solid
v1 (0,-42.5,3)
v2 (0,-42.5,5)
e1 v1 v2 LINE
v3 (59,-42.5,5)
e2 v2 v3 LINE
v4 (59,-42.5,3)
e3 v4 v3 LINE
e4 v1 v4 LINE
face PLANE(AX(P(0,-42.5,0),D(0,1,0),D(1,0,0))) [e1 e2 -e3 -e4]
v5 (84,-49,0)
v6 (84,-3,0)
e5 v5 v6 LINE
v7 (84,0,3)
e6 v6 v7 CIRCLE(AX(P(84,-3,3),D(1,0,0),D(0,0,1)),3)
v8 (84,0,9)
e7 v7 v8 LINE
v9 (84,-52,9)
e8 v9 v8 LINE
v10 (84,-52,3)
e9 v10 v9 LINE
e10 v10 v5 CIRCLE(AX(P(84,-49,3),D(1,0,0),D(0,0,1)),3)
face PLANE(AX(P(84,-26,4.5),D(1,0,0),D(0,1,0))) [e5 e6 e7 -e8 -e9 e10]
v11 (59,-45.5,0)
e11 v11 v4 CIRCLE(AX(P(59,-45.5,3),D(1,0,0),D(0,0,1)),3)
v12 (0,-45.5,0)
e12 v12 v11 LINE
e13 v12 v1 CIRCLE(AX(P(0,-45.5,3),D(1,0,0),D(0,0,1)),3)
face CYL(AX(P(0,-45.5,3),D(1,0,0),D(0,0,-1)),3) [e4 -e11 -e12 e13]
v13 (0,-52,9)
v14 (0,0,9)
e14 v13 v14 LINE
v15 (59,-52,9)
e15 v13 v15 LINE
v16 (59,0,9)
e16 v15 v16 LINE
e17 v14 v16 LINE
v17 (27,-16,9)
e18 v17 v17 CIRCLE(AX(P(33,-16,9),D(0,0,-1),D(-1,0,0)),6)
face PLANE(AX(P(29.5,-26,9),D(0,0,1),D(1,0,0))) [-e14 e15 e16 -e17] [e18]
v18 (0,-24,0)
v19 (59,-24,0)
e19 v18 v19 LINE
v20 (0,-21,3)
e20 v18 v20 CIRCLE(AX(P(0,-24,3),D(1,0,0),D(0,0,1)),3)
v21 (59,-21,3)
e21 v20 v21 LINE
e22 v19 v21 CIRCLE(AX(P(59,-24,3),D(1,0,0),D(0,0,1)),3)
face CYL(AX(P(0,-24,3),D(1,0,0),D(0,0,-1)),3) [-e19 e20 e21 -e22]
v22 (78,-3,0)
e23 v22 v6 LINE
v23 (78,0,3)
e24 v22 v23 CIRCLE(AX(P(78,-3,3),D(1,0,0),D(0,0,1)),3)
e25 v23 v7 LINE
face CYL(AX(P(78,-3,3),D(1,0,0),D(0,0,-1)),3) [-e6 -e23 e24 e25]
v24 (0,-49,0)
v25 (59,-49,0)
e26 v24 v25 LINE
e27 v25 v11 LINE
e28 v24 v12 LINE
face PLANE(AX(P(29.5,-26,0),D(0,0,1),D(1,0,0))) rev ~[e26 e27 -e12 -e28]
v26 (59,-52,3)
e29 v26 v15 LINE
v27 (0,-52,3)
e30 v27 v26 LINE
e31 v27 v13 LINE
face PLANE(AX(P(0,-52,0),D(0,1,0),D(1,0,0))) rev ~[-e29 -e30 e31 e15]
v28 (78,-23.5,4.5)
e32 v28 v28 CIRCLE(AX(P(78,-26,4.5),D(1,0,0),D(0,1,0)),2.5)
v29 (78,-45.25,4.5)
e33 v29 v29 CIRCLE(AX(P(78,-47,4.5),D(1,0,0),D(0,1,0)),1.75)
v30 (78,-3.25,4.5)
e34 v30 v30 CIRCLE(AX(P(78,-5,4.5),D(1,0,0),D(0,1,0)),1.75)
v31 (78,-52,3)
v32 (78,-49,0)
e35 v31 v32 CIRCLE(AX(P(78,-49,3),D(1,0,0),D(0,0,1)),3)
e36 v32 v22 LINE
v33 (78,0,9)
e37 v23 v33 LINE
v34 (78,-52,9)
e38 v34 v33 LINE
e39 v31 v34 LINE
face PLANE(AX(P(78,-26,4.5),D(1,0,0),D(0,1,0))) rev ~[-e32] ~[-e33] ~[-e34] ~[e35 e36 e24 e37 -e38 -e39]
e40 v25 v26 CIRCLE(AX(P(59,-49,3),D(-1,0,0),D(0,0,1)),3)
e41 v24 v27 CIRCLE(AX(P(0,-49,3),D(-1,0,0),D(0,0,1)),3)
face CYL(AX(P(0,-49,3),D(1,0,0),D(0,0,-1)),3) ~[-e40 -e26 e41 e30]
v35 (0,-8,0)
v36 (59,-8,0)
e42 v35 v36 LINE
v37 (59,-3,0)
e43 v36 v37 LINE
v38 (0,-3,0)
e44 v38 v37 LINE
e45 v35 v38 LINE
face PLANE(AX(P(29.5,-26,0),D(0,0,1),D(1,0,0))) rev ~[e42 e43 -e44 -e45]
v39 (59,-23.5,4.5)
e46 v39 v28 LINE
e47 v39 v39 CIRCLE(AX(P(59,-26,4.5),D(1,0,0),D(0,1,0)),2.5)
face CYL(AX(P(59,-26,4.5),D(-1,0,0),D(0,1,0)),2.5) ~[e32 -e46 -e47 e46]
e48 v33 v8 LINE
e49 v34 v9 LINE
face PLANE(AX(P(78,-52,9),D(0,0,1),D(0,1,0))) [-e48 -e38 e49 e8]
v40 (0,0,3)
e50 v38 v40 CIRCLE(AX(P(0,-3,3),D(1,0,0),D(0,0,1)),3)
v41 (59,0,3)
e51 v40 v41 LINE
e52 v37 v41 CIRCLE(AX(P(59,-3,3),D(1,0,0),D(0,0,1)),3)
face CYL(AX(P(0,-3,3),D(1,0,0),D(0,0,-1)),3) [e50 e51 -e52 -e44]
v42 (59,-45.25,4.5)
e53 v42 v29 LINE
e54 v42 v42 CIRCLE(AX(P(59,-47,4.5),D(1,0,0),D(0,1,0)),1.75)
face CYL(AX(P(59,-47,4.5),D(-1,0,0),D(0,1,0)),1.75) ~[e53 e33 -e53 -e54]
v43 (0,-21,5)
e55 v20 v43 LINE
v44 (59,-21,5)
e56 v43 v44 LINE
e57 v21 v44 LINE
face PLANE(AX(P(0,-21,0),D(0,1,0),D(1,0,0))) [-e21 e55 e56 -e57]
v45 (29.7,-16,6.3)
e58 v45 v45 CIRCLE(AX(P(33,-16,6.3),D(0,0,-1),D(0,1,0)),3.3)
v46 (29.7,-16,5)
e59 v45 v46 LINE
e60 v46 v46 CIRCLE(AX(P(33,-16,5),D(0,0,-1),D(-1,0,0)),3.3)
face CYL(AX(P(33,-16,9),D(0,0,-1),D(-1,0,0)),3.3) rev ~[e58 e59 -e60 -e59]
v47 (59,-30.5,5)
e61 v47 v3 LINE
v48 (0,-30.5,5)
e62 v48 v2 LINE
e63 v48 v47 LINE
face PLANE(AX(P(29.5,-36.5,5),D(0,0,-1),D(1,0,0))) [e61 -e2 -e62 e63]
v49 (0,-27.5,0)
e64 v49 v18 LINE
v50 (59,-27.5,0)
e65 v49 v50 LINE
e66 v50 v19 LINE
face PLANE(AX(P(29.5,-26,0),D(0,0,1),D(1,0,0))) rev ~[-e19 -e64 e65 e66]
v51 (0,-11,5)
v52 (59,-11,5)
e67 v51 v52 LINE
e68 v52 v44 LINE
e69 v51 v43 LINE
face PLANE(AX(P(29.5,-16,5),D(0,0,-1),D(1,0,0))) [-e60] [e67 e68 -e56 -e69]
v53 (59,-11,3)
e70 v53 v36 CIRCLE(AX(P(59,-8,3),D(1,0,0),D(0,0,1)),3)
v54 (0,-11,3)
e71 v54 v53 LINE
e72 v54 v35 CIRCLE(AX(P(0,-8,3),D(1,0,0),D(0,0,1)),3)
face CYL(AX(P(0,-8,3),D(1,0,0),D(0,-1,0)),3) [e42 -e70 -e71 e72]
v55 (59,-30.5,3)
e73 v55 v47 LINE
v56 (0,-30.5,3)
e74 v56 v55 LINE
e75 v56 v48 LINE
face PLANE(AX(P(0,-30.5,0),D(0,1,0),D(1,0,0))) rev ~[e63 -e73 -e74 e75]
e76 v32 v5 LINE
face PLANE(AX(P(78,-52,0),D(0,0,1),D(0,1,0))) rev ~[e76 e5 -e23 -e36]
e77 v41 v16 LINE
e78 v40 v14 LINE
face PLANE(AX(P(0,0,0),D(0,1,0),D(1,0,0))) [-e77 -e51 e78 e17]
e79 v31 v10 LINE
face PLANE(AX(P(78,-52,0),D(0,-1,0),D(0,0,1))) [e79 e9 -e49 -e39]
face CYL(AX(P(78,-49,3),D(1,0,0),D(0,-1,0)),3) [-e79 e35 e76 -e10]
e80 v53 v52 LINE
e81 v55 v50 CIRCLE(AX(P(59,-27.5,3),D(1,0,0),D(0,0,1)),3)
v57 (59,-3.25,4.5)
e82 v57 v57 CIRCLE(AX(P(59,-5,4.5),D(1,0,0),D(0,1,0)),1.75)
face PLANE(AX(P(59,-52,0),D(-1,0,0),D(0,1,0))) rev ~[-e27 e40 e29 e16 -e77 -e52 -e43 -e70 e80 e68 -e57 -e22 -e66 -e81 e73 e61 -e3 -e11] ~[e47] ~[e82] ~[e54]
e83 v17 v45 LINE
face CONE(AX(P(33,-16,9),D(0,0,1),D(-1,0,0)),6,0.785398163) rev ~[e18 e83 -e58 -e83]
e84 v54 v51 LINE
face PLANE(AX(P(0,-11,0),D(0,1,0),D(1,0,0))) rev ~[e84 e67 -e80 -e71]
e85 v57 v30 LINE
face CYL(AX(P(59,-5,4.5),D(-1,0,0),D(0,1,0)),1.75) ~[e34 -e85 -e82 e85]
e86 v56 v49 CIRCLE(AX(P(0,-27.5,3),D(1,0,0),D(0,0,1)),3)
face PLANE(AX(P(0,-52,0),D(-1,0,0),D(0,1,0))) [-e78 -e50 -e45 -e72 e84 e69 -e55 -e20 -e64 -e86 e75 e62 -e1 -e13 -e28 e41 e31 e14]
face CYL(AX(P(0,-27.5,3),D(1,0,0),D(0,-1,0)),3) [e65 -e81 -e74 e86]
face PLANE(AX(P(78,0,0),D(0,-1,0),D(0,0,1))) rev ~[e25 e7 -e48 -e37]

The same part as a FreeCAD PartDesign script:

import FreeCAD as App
import Part
import Sketcher
from FreeCAD import Vector


def edges_at(feature, points):
    """Names of the edges that pass closest to the given points."""
    edges = feature.Shape.Edges
    near = lambda p: min(range(len(edges)), key=lambda i: edges[i].distToShape(Part.Vertex(*p))[0])
    return sorted({f"Edge{near(p) + 1}" for p in points})

doc = App.newDocument("Part")
params = doc.addObject("Spreadsheet::Sheet", "Params")
for row, (alias, value) in enumerate([
    ("sketch1_width", "59 mm"),
    ("sketch1_height", "52 mm"),
    ("pad1_length", "9 mm"),
    ("sketch2_diameter", "5 mm"),
    ("sketch2_diameter2", "3.5 mm"),
    ("pad2_length", "19 mm"),
    ("sketch3_width", "52 mm"),
    ("sketch3_height", "9 mm"),
    ("pad3_length", "6 mm"),
    ("sketch4_diameter", "6.6 mm"),
    ("hole_diameter", "6.6 mm"),
    ("hole_depth", "25 mm"),
    ("hole_csink_diameter", "12 mm"),
    ("sketch5_width", "59 mm"),
    ("sketch5_height", "10 mm"),
    ("sketch5_height2", "12 mm"),
    ("pocket1_length", "5 mm"),
    ("fillet_radius", "3 mm"),
], start=1):
    params.set(f"A{row}", alias)
    params.set(f"B{row}", "=" + value)
    params.setAlias(f"B{row}", alias)

body = doc.addObject("PartDesign::Body", "Body")

sketch1 = doc.addObject("Sketcher::SketchObject", "Sketch")
body.addObject(sketch1)
sketch1.AttachmentSupport = (doc.XY_Plane, [""])
sketch1.MapMode = "FlatFace"
sketch1.addGeometry([
    Part.LineSegment(Vector(0, 0, 0), Vector(0, -52, 0)),
    Part.LineSegment(Vector(0, -52, 0), Vector(59, -52, 0)),
    Part.LineSegment(Vector(59, -52, 0), Vector(59, 0, 0)),
    Part.LineSegment(Vector(59, 0, 0), Vector(0, 0, 0)),
], False)
sketch1.addConstraint([
    Sketcher.Constraint("Coincident", 0, 2, 1, 1),
    Sketcher.Constraint("Coincident", 1, 2, 2, 1),
    Sketcher.Constraint("Coincident", 2, 2, 3, 1),
    Sketcher.Constraint("Coincident", 3, 2, 0, 1),
    Sketcher.Constraint("Vertical", 0),
    Sketcher.Constraint("Horizontal", 1),
    Sketcher.Constraint("Vertical", 2),
    Sketcher.Constraint("Horizontal", 3),
    Sketcher.Constraint("Coincident", 3, 2, -1, 1),
    Sketcher.Constraint("DistanceX", 1, 1, 1, 2, 59.0),
    Sketcher.Constraint("DistanceY", 0, 2, 0, 1, 52.0),
])
sketch1.setExpression("Constraints[9]", "Params.sketch1_width")
sketch1.setExpression("Constraints[10]", "Params.sketch1_height")
pad1 = doc.addObject("PartDesign::Pad", "Pad")
body.addObject(pad1)
pad1.Profile = sketch1
pad1.setExpression("Length", "Params.pad1_length")

sketch2 = doc.addObject("Sketcher::SketchObject", "Sketch001")
body.addObject(sketch2)
sketch2.AttachmentSupport = (doc.YZ_Plane, [""])
sketch2.MapMode = "FlatFace"
sketch2.AttachmentOffset = App.Placement(Vector(0, 0, 59), App.Rotation())
sketch2.addGeometry([
    Part.Circle(Vector(-47, 4.5, 0), Vector(0, 0, 1), 1.8),
    Part.Circle(Vector(-5, 4.5, 0), Vector(0, 0, 1), 1.8),
    Part.Circle(Vector(-26, 4.5, 0), Vector(0, 0, 1), 2.5),
], False)
sketch2.addConstraint([
    Sketcher.Constraint("Equal", 0, 1),
    Sketcher.Constraint("Horizontal", 0, 3, 1, 3),
    Sketcher.Constraint("Horizontal", 1, 3, 2, 3),
    Sketcher.Constraint("Diameter", 2, 5.0),
    Sketcher.Constraint("Diameter", 0, 3.5),
    Sketcher.Constraint("DistanceX", 0, 3, -1, 1, 47.0),
    Sketcher.Constraint("DistanceX", 1, 3, -1, 1, 5.0),
    Sketcher.Constraint("DistanceX", 2, 3, -1, 1, 26.0),
    Sketcher.Constraint("DistanceY", -1, 1, 0, 3, 4.5),
])
sketch2.setExpression("Constraints[3]", "Params.sketch2_diameter")
sketch2.setExpression("Constraints[4]", "Params.sketch2_diameter2")
pad2 = doc.addObject("PartDesign::Pad", "Pad001")
body.addObject(pad2)
pad2.Profile = sketch2
pad2.setExpression("Length", "Params.pad2_length")

sketch3 = doc.addObject("Sketcher::SketchObject", "Sketch002")
body.addObject(sketch3)
sketch3.AttachmentSupport = (doc.YZ_Plane, [""])
sketch3.MapMode = "FlatFace"
sketch3.AttachmentOffset = App.Placement(Vector(0, 0, 78), App.Rotation())
sketch3.addGeometry([
    Part.LineSegment(Vector(-52, 9, 0), Vector(-52, 0, 0)),
    Part.LineSegment(Vector(-52, 0, 0), Vector(0, 0, 0)),
    Part.LineSegment(Vector(0, 0, 0), Vector(0, 9, 0)),
    Part.LineSegment(Vector(0, 9, 0), Vector(-52, 9, 0)),
], False)
sketch3.addConstraint([
    Sketcher.Constraint("Coincident", 0, 2, 1, 1),
    Sketcher.Constraint("Coincident", 1, 2, 2, 1),
    Sketcher.Constraint("Coincident", 2, 2, 3, 1),
    Sketcher.Constraint("Coincident", 3, 2, 0, 1),
    Sketcher.Constraint("Vertical", 0),
    Sketcher.Constraint("Horizontal", 1),
    Sketcher.Constraint("Vertical", 2),
    Sketcher.Constraint("Horizontal", 3),
    Sketcher.Constraint("Coincident", 1, 2, -1, 1),
    Sketcher.Constraint("DistanceX", 1, 1, 1, 2, 52.0),
    Sketcher.Constraint("DistanceY", 0, 2, 0, 1, 9.0),
])
sketch3.setExpression("Constraints[9]", "Params.sketch3_width")
sketch3.setExpression("Constraints[10]", "Params.sketch3_height")
pad3 = doc.addObject("PartDesign::Pad", "Pad002")
body.addObject(pad3)
pad3.Profile = sketch3
pad3.setExpression("Length", "Params.pad3_length")

sketch4 = doc.addObject("Sketcher::SketchObject", "Sketch003")
body.addObject(sketch4)
sketch4.AttachmentSupport = (doc.XY_Plane, [""])
sketch4.MapMode = "FlatFace"
sketch4.AttachmentOffset = App.Placement(Vector(0, 0, 9), App.Rotation())
sketch4.addGeometry(Part.Circle(Vector(33, -16, 0), Vector(0, 0, 1), 3.3), False)
sketch4.addConstraint([
    Sketcher.Constraint("Diameter", 0, 6.6),
    Sketcher.Constraint("DistanceX", -1, 1, 0, 3, 33.0),
    Sketcher.Constraint("DistanceY", 0, 3, -1, 1, 16.0),
])
sketch4.setExpression("Constraints[0]", "Params.sketch4_diameter")
doc.recompute()
hole = doc.addObject("PartDesign::Hole", "Hole")
body.addObject(hole)
hole.Profile = sketch4
hole.ThreadType = "None"
hole.setExpression("Diameter", "Params.hole_diameter")
hole.DepthType = "Dimension"
hole.setExpression("Depth", "Params.hole_depth")
hole.DrillPoint = "Flat"
hole.HoleCutType = "Countersink"
hole.setExpression("HoleCutDiameter", "Params.hole_csink_diameter")
hole.HoleCutCountersinkAngle = 90

sketch5 = doc.addObject("Sketcher::SketchObject", "Sketch004")
body.addObject(sketch5)
sketch5.AttachmentSupport = (doc.XY_Plane, [""])
sketch5.MapMode = "FlatFace"
sketch5.addGeometry([
    Part.LineSegment(Vector(0, -21, 0), Vector(0, -11, 0)),
    Part.LineSegment(Vector(0, -11, 0), Vector(59, -11, 0)),
    Part.LineSegment(Vector(59, -11, 0), Vector(59, -21, 0)),
    Part.LineSegment(Vector(59, -21, 0), Vector(0, -21, 0)),
    Part.LineSegment(Vector(0, -42, 0), Vector(0, -30, 0)),
    Part.LineSegment(Vector(0, -30, 0), Vector(59, -30, 0)),
    Part.LineSegment(Vector(59, -30, 0), Vector(59, -42, 0)),
    Part.LineSegment(Vector(59, -42, 0), Vector(0, -42, 0)),
], False)
sketch5.addConstraint([
    Sketcher.Constraint("Coincident", 0, 2, 1, 1),
    Sketcher.Constraint("Coincident", 1, 2, 2, 1),
    Sketcher.Constraint("Coincident", 2, 2, 3, 1),
    Sketcher.Constraint("Coincident", 3, 2, 0, 1),
    Sketcher.Constraint("Coincident", 4, 2, 5, 1),
    Sketcher.Constraint("Coincident", 5, 2, 6, 1),
    Sketcher.Constraint("Coincident", 6, 2, 7, 1),
    Sketcher.Constraint("Coincident", 7, 2, 4, 1),
    Sketcher.Constraint("Vertical", 0),
    Sketcher.Constraint("Horizontal", 1),
    Sketcher.Constraint("Vertical", 2),
    Sketcher.Constraint("Horizontal", 3),
    Sketcher.Constraint("Vertical", 4),
    Sketcher.Constraint("Horizontal", 5),
    Sketcher.Constraint("Vertical", 6),
    Sketcher.Constraint("Horizontal", 7),
    Sketcher.Constraint("PointOnObject", 0, 2, -2),
    Sketcher.Constraint("PointOnObject", 4, 2, -2),
    Sketcher.Constraint("Vertical", 2, 2, 5, 2),
    Sketcher.Constraint("DistanceX", 1, 1, 1, 2, 59.0),
    Sketcher.Constraint("DistanceY", 0, 1, 0, 2, 10.0),
    Sketcher.Constraint("DistanceY", 4, 1, 4, 2, 12.0),
    Sketcher.Constraint("DistanceY", 0, 2, -1, 1, 11.0),
    Sketcher.Constraint("DistanceY", 4, 2, -1, 1, 30.5),
])
sketch5.setExpression("Constraints[19]", "Params.sketch5_width")
sketch5.setExpression("Constraints[20]", "Params.sketch5_height")
sketch5.setExpression("Constraints[21]", "Params.sketch5_height2")
pocket1 = doc.addObject("PartDesign::Pocket", "Pocket")
body.addObject(pocket1)
pocket1.Profile = sketch5
pocket1.setExpression("Length", "Params.pocket1_length")
pocket1.Reversed = True
doc.recompute()

fillet = doc.addObject("PartDesign::Fillet", "Fillet")
body.addObject(fillet)
fillet.Base = (pocket1, edges_at(pocket1, [
    (29.5, 0, 0),
    (81, 0, 0),
    (29.5, -11, 0),
    (29.5, -21, 0),
    (29.5, -30.5, 0),
    (29.5, -42.5, 0),
    (29.5, -52, 0),
    (81, -52, 0),
]))
fillet.setExpression("Radius", "Params.fillet_radius")

doc.recompute()
